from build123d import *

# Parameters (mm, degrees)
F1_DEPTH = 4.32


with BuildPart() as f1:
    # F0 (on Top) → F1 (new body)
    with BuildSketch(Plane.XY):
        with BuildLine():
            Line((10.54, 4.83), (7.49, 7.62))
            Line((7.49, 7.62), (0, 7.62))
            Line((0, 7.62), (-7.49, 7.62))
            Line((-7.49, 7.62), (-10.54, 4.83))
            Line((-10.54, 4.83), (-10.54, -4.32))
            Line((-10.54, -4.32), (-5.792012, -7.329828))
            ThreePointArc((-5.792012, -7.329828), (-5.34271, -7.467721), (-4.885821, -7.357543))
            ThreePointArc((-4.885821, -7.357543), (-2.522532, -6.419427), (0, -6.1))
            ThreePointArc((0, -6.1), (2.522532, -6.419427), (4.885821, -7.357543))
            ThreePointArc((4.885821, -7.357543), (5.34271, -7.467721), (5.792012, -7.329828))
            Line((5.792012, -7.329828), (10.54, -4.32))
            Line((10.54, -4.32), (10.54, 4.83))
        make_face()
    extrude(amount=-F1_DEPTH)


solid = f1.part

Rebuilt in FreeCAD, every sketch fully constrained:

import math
import FreeCAD as App
import Part
import Sketcher
Q = App.Units.Quantity

doc = App.newDocument("Part")
params = doc.addObject("Spreadsheet::Sheet", "Params")
for row, (alias, value) in enumerate([
    ("sketch1_radius", "0.890001 mm"),
    ("sketch1_width", "14.98 mm"),
    ("sketch1_height", "9.15 mm"),
    ("pad1_length", "4.32 mm"),
], start=1):
    params.set(f"A{row}", alias)
    params.set(f"B{row}", "=" + value)
    params.setAlias(f"B{row}", alias)

body = doc.addObject("PartDesign::Body", "Body")

# Sketch on XY plane
sketch1 = doc.addObject("Sketcher::SketchObject", "Sketch")
body.addObject(sketch1)
sketch1.AttachmentSupport = (doc.XY_Plane, [""])
sketch1.MapMode = "FlatFace"
sketch1.addGeometry(Part.LineSegment(App.Vector(10.5, 4.8, 0), App.Vector(7.5, 7.6, 0)), False)
sketch1.addGeometry(Part.LineSegment(App.Vector(7.5, 7.6, 0), App.Vector(-7.5, 7.6, 0)), False)
sketch1.addGeometry(Part.LineSegment(App.Vector(-7.5, 7.6, 0), App.Vector(-10.5, 4.8, 0)), False)
sketch1.addGeometry(Part.LineSegment(App.Vector(-10.5, 4.8, 0), App.Vector(-10.5, -4.3, 0)), False)
sketch1.addGeometry(Part.LineSegment(App.Vector(-10.5, -4.3, 0), App.Vector(-5.8, -7.3, 0)), False)
sketch1.addGeometry(Part.ArcOfCircle(Part.Circle(App.Vector(-5.3, -6.6, 0), App.Vector(0, 0, 1), 0.9), math.radians(-122), math.radians(-61)), False)
sketch1.addGeometry(Part.ArcOfCircle(Part.Circle(App.Vector(0, -16.2, 0), App.Vector(0, 0, 1), 10.1), math.radians(90), math.radians(119)), False)
sketch1.addGeometry(Part.ArcOfCircle(Part.Circle(App.Vector(0, -16.2, 0), App.Vector(0, 0, 1), 10.1), math.radians(61), math.radians(90)), False)
sketch1.addGeometry(Part.ArcOfCircle(Part.Circle(App.Vector(5.3, -6.6, 0), App.Vector(0, 0, 1), 0.9), math.radians(-119), math.radians(-58)), False)
sketch1.addGeometry(Part.LineSegment(App.Vector(5.8, -7.3, 0), App.Vector(10.5, -4.3, 0)), False)
sketch1.addGeometry(Part.LineSegment(App.Vector(10.5, -4.3, 0), App.Vector(10.5, 4.8, 0)), False)
sketch1.addConstraint(Sketcher.Constraint("Coincident", 0, 2, 1, 1))
sketch1.addConstraint(Sketcher.Constraint("Coincident", 1, 2, 2, 1))
sketch1.addConstraint(Sketcher.Constraint("Coincident", 2, 2, 3, 1))
sketch1.addConstraint(Sketcher.Constraint("Coincident", 3, 2, 4, 1))
sketch1.addConstraint(Sketcher.Constraint("Tangent", 4, 2, 5, 1))
sketch1.addConstraint(Sketcher.Constraint("Tangent", 5, 2, 6, 2))
sketch1.addConstraint(Sketcher.Constraint("Tangent", 6, 1, 7, 2))
sketch1.addConstraint(Sketcher.Constraint("Tangent", 7, 1, 8, 1))
sketch1.addConstraint(Sketcher.Constraint("Tangent", 8, 2, 9, 1))
sketch1.addConstraint(Sketcher.Constraint("Coincident", 9, 2, 10, 1))
sketch1.addConstraint(Sketcher.Constraint("Coincident", 10, 2, 0, 1))
sketch1.addConstraint(Sketcher.Constraint("Horizontal", 1))
sketch1.addConstraint(Sketcher.Constraint("Vertical", 3))
sketch1.addConstraint(Sketcher.Constraint("Vertical", 10))
sketch1.addConstraint(Sketcher.Constraint("Equal", 6, 7))
sketch1.addConstraint(Sketcher.Constraint("Equal", 5, 8))
sketch1.addConstraint(Sketcher.Constraint("Symmetric", 5, 3, 8, 3, -2))
sketch1.addConstraint(Sketcher.Constraint("Symmetric", 3, 2, 9, 2, -2))
sketch1.addConstraint(Sketcher.Constraint("PointOnObject", 6, 1, -2))
sketch1.addConstraint(Sketcher.Constraint("Horizontal", 2, 2, 10, 2))
sketch1.addConstraint(Sketcher.Constraint("Equal", 0, 2))
sketch1.addConstraint(Sketcher.Constraint("Radius", 5, Q("0.890001 mm")))
sketch1.addConstraint(Sketcher.Constraint("DistanceX", 1, 2, 1, 1, Q("14.98 mm")))
sketch1.addConstraint(Sketcher.Constraint("DistanceY", 3, 2, 3, 1, Q("9.15 mm")))
sketch1.addConstraint(Sketcher.Constraint("DistanceY", 6, 1, -1, 1, Q("6.1 mm")))
sketch1.addConstraint(Sketcher.Constraint("DistanceY", -1, 1, 0, 2, Q("7.62 mm")))
sketch1.addConstraint(Sketcher.Constraint("DistanceX", 2, 2, -1, 1, Q("10.54 mm")))
sketch1.addConstraint(Sketcher.Constraint("DistanceY", -1, 1, 2, 2, Q("4.83 mm")))
sketch1.addConstraint(Sketcher.Constraint("Radius", 6, Q("10.119995 mm")))
sketch1.addConstraint(Sketcher.Constraint("DistanceX", 4, 2, -1, 1, Q("5.792012 mm")))
sketch1.setExpression("Constraints[21]", "Params.sketch1_radius")
sketch1.setExpression("Constraints[22]", "Params.sketch1_width")
sketch1.setExpression("Constraints[23]", "Params.sketch1_height")
pad1 = doc.addObject("PartDesign::Pad", "Pad")
body.addObject(pad1)
pad1.Profile = sketch1
pad1.setExpression("Length", "Params.pad1_length")
pad1.Reversed = True

doc.recompute()
